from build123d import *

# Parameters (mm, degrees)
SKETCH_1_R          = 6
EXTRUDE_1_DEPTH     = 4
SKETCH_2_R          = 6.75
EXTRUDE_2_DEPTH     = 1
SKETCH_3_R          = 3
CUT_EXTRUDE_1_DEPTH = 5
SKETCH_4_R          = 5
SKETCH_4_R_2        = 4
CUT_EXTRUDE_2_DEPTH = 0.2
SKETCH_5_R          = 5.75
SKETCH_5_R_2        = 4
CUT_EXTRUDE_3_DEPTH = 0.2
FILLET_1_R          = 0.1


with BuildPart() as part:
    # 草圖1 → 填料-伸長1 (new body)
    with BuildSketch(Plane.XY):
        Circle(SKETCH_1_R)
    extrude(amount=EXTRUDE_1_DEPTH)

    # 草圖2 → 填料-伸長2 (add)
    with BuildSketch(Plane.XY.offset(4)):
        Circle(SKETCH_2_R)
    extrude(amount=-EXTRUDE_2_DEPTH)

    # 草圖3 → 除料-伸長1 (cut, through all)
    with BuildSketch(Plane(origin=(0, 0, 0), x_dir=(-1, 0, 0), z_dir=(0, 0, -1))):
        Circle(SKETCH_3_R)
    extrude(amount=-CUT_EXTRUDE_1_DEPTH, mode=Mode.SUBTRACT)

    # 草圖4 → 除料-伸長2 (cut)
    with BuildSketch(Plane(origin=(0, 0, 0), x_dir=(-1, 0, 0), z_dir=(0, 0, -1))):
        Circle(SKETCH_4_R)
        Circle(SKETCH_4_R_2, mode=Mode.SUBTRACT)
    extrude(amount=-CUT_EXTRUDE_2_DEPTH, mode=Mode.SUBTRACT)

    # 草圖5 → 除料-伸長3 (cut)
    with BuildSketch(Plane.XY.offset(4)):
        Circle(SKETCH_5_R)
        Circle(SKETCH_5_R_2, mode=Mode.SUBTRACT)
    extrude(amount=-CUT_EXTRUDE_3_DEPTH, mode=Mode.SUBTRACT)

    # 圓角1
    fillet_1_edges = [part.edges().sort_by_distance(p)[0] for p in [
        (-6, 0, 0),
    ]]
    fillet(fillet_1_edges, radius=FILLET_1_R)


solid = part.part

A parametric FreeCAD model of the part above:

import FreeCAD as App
import Part
import Sketcher
Q = App.Units.Quantity


def edges_at(feature, points):
    """Names of the edges that pass closest to the given points."""
    edges = feature.Shape.Edges
    near = lambda p: min(range(len(edges)), key=lambda i: edges[i].distToShape(Part.Vertex(*p))[0])
    return sorted({f"Edge{near(p) + 1}" for p in points})

doc = App.newDocument("Part")
body = doc.addObject("PartDesign::Body", "Body")

# Sketch on XY plane
sketch1 = body.newObject("Sketcher::SketchObject", "Sketch")
sketch1.AttachmentSupport = (doc.getObject("XY_Plane"), [""])
sketch1.MapMode = "FlatFace"
sketch1.addGeometry(Part.Circle(App.Vector(0, 0, 0), App.Vector(0, 0, 1), 6), False)
sketch1.addConstraint([
    Sketcher.Constraint("Coincident", 0, 3, -1, 1),
    Sketcher.Constraint("Diameter", 0, Q("12 mm")),
])
pad1 = body.newObject("PartDesign::Pad", "Pad")
pad1.Profile = sketch1
pad1.Length = 4

# Sketch on XY plane
sketch2 = body.newObject("Sketcher::SketchObject", "Sketch001")
sketch2.AttachmentSupport = (doc.getObject("XY_Plane"), [""])
sketch2.MapMode = "FlatFace"
sketch2.AttachmentOffset = App.Placement(App.Vector(0, 0, 4), App.Rotation())
sketch2.addGeometry(Part.Circle(App.Vector(0, 0, 0), App.Vector(0, 0, 1), 7), False)
sketch2.addConstraint([
    Sketcher.Constraint("Coincident", 0, 3, -1, 1),
    Sketcher.Constraint("Diameter", 0, Q("13.5 mm")),
])
pad2 = body.newObject("PartDesign::Pad", "Pad001")
pad2.Profile = sketch2
pad2.Length = 1
pad2.Reversed = True

# Sketch on XY plane
sketch3 = body.newObject("Sketcher::SketchObject", "Sketch002")
sketch3.AttachmentSupport = (doc.getObject("XY_Plane"), [""])
sketch3.MapMode = "FlatFace"
sketch3.addGeometry(Part.Circle(App.Vector(0, 0, 0), App.Vector(0, 0, 1), 3), False)
sketch3.addConstraint([
    Sketcher.Constraint("Coincident", 0, 3, -1, 1),
    Sketcher.Constraint("Diameter", 0, Q("6 mm")),
])
pocket1 = body.newObject("PartDesign::Pocket", "Pocket")
pocket1.Profile = sketch3
pocket1.Type = "ThroughAll"
pocket1.Reversed = True

# Sketch on XY plane
sketch4 = body.newObject("Sketcher::SketchObject", "Sketch003")
sketch4.AttachmentSupport = (doc.getObject("XY_Plane"), [""])
sketch4.MapMode = "FlatFace"
sketch4.addGeometry([
    Part.Circle(App.Vector(0, 0, 0), App.Vector(0, 0, 1), 5),
    Part.Circle(App.Vector(0, 0, 0), App.Vector(0, 0, 1), 4),
], False)
sketch4.addConstraint([
    Sketcher.Constraint("Coincident", 0, 3, -1, 1),
    Sketcher.Constraint("Coincident", 1, 3, -1, 1),
    Sketcher.Constraint("Diameter", 0, Q("10 mm")),
    Sketcher.Constraint("Diameter", 1, Q("8 mm")),
])
pocket2 = body.newObject("PartDesign::Pocket", "Pocket001")
pocket2.Profile = sketch4
pocket2.Length = 0.2
pocket2.Reversed = True

# Sketch on XY plane
sketch5 = body.newObject("Sketcher::SketchObject", "Sketch004")
sketch5.AttachmentSupport = (doc.getObject("XY_Plane"), [""])
sketch5.MapMode = "FlatFace"
sketch5.AttachmentOffset = App.Placement(App.Vector(0, 0, 4), App.Rotation())
sketch5.addGeometry([
    Part.Circle(App.Vector(0, 0, 0), App.Vector(0, 0, 1), 5.8),
    Part.Circle(App.Vector(0, 0, 0), App.Vector(0, 0, 1), 4),
], False)
sketch5.addConstraint([
    Sketcher.Constraint("Coincident", 0, 3, -1, 1),
    Sketcher.Constraint("Coincident", 1, 3, -1, 1),
    Sketcher.Constraint("Diameter", 1, Q("8 mm")),
    Sketcher.Constraint("Diameter", 0, Q("11.5 mm")),
])
pocket3 = body.newObject("PartDesign::Pocket", "Pocket002")
pocket3.Profile = sketch5
pocket3.Length = 0.2
doc.recompute()

fillet = body.newObject("PartDesign::Fillet", "Fillet")
fillet.Base = (pocket3, edges_at(pocket3, [(-6, 0, 0)]))
fillet.Radius = 0.1

doc.recompute()
